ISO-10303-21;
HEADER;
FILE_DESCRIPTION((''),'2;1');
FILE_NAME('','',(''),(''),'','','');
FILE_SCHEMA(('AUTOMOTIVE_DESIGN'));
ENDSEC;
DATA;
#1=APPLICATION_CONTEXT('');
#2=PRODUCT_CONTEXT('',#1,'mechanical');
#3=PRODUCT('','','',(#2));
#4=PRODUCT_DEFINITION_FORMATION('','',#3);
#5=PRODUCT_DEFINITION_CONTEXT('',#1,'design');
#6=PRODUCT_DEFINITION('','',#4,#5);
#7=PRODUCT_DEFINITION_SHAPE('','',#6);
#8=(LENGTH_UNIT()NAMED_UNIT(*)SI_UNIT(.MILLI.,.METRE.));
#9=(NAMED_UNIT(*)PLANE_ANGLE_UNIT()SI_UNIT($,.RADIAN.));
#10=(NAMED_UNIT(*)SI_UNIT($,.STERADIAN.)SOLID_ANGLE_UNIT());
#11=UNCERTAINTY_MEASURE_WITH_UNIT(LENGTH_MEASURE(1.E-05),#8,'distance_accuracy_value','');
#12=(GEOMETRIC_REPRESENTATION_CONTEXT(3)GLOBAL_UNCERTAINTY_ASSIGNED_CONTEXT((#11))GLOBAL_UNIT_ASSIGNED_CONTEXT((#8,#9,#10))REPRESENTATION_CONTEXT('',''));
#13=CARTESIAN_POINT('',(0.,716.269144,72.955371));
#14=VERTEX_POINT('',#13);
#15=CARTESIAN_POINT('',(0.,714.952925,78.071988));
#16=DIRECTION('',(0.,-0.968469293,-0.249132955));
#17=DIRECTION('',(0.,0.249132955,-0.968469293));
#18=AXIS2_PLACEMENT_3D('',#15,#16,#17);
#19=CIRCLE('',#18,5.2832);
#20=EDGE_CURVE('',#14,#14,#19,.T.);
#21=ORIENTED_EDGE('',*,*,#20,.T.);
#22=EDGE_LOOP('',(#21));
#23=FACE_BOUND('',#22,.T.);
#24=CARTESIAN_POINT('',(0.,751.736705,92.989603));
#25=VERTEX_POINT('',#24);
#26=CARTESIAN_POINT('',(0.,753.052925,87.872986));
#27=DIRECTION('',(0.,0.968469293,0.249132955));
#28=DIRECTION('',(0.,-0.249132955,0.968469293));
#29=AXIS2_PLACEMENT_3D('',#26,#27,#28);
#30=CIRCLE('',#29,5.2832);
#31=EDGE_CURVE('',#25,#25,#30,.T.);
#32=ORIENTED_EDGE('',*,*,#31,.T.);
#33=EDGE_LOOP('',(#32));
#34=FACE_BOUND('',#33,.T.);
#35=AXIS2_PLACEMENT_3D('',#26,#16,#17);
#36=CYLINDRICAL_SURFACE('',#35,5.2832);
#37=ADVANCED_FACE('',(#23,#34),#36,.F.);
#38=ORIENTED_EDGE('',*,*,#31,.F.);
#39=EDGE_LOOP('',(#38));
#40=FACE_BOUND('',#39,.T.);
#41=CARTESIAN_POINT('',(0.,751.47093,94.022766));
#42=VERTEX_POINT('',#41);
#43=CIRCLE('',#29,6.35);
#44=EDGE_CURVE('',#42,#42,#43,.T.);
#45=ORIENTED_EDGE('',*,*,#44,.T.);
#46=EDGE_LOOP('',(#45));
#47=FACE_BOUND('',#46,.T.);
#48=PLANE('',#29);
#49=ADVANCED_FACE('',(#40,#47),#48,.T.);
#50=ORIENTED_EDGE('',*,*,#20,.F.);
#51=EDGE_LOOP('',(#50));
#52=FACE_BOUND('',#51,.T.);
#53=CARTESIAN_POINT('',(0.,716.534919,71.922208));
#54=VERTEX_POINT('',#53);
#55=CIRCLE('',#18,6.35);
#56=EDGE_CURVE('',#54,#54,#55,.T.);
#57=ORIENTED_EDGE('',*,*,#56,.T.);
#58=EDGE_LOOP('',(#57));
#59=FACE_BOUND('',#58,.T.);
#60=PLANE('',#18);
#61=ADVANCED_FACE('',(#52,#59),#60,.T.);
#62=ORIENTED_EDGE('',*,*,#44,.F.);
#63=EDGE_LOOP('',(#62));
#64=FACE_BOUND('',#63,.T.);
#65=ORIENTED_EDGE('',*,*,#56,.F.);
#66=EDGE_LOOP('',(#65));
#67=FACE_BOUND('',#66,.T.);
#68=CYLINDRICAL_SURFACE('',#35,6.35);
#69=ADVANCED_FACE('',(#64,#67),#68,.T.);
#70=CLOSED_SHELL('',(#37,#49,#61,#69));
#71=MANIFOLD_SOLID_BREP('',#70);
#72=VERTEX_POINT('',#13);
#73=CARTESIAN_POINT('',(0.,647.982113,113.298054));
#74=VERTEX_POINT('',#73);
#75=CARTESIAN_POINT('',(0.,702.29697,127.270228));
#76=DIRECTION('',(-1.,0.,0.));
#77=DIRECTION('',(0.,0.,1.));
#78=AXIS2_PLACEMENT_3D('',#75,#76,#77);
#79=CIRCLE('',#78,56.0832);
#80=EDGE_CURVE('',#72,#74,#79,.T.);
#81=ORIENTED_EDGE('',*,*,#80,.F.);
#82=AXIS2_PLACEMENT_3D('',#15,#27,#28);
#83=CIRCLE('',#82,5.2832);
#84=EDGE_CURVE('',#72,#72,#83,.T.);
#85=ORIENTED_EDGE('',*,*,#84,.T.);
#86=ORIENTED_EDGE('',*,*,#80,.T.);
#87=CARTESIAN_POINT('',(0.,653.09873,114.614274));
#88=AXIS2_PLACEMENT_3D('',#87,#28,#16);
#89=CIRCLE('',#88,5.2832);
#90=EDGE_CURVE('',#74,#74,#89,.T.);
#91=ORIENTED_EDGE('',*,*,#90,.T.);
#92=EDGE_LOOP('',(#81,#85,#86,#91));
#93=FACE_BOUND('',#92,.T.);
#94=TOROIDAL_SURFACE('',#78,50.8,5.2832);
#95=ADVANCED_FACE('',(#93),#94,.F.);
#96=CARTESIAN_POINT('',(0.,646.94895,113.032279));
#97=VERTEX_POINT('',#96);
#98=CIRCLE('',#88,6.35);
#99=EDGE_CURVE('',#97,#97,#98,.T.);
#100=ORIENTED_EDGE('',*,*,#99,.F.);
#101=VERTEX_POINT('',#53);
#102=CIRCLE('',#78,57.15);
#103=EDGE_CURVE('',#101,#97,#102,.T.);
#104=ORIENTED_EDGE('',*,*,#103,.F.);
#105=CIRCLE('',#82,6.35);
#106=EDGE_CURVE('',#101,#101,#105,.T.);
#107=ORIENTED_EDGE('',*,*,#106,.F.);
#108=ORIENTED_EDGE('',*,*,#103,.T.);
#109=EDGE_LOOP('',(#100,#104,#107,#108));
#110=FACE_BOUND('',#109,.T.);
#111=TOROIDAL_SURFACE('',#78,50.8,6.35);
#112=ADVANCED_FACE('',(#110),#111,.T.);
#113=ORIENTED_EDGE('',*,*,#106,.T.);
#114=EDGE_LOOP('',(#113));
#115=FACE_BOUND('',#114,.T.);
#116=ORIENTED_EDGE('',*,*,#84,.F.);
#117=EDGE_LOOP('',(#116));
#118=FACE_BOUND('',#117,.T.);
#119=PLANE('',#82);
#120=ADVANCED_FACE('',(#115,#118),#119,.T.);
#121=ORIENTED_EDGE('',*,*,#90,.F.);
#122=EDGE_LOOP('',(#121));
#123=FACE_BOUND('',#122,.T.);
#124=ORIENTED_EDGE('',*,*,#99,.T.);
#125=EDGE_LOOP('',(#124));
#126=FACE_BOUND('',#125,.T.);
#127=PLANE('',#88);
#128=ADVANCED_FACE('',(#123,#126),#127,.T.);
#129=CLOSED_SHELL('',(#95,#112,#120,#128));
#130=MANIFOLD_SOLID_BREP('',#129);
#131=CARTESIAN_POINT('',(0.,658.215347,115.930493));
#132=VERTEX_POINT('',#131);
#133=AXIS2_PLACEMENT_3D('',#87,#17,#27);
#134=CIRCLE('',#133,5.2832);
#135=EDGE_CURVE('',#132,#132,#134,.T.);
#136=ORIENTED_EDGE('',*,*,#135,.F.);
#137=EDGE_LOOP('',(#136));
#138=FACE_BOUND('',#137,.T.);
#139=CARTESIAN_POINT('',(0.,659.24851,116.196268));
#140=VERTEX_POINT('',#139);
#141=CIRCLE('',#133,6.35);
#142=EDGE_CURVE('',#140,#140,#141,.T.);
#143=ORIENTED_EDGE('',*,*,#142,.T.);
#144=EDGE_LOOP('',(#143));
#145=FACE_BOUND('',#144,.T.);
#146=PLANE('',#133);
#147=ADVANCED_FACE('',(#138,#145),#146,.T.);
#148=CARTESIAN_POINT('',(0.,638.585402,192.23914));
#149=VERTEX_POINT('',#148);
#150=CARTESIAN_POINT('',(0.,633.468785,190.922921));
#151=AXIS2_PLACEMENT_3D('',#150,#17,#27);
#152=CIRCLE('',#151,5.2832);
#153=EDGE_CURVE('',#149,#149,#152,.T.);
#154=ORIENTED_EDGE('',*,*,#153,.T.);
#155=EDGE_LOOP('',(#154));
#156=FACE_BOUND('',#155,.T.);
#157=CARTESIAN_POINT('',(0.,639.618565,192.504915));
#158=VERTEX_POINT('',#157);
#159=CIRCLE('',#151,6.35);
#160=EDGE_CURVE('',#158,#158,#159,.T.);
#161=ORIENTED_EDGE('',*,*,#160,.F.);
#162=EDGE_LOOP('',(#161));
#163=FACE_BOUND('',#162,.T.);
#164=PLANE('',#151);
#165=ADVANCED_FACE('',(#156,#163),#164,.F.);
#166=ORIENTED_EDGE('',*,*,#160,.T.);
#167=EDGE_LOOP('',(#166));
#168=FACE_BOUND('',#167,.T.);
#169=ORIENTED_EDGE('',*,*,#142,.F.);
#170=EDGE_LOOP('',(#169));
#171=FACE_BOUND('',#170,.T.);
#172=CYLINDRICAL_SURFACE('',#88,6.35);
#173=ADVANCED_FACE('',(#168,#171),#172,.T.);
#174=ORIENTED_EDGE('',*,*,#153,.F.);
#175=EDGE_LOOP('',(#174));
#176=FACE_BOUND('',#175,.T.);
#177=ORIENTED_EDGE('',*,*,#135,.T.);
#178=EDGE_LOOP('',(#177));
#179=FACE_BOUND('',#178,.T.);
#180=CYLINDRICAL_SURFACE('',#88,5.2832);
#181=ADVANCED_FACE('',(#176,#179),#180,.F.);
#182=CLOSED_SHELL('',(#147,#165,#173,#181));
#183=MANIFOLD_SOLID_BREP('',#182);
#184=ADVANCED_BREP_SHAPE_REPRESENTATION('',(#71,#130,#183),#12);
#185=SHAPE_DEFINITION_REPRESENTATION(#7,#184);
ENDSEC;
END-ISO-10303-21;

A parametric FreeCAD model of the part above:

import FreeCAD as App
import Part
import Sketcher
Q = App.Units.Quantity

doc = App.newDocument("Part")
body = doc.addObject("PartDesign::Body", "Body")

# Sketch on an angled plane
sketch1 = body.newObject("Sketcher::SketchObject", "Sketch")
sketch1.Placement = App.Placement(App.Vector(0, 633.468785, 190.922921), App.Rotation(App.Vector(0, 0.968469293, 0.249132955), App.Vector(1.000000001, 0, 0), App.Vector(0, 0.249132955, -0.968469293), "ZXY"))
sketch1.addGeometry([
    Part.Circle(App.Vector(0, 0, 0), App.Vector(0, 0, 1), 6),
    Part.Circle(App.Vector(0, 0, 0), App.Vector(0, 0, 1), 5),
], False)
sketch1.addConstraint([
    Sketcher.Constraint("Coincident", 0, 3, -1, 1),
    Sketcher.Constraint("Coincident", 1, 3, -1, 1),
    Sketcher.Constraint("Diameter", 0, Q("0.5 in")),
    Sketcher.Constraint("Diameter", 1, Q("0.416 in")),
])
pad1 = body.newObject("PartDesign::Pad", "Pad")
pad1.Profile = sketch1
pad1.Length = 78.793048
body2 = doc.addObject("PartDesign::Body", "Body001")

# Sketch on an angled plane
sketch2 = body2.newObject("Sketcher::SketchObject", "Sketch001")
sketch2.Placement = App.Placement(App.Vector(0, 653.09873, 114.614274), App.Rotation(App.Vector(0, 0.968469293, 0.249132955), App.Vector(1.000000001, 0, 0), App.Vector(0, 0.249132955, -0.968469293), "ZXY"))
sketch2.addGeometry([
    Part.Circle(App.Vector(0, 0, 0), App.Vector(0, 0, 1), 6),
    Part.Circle(App.Vector(0, 0, 0), App.Vector(0, 0, 1), 5),
], False)
sketch2.addGeometry(Part.LineSegment(App.Vector(51, 0, 0), App.Vector(51, 10, 0)), True)  # axis
sketch2.addConstraint([
    Sketcher.Constraint("Vertical", 2),
    Sketcher.Constraint("Coincident", 0, 3, -1, 1),
    Sketcher.Constraint("Coincident", 1, 3, -1, 1),
    Sketcher.Constraint("PointOnObject", 2, 1, -1),
    Sketcher.Constraint("Diameter", 0, Q("0.5 in")),
    Sketcher.Constraint("Diameter", 1, Q("0.416 in")),
    Sketcher.Constraint("DistanceX", -1, 1, 2, 1, Q("2 in")),
    Sketcher.Constraint("DistanceY", 2, 1, 2, 2, 10.0),
])
revolution = body2.newObject("PartDesign::Revolution", "Revolution")
revolution.Profile = sketch2
revolution.ReferenceAxis = (sketch2, ["Axis0"])
revolution.Angle = 90
body3 = doc.addObject("PartDesign::Body", "Body002")

# Sketch on an angled plane
sketch3 = body3.newObject("Sketcher::SketchObject", "Sketch002")
sketch3.Placement = App.Placement(App.Vector(0, 714.952925, 78.071988), App.Rotation(App.Vector(0, -0.249132955, 0.968469293), App.Vector(1.000000001, 0, 0), App.Vector(0, 0.968469293, 0.249132955), "ZXY"))
sketch3.addGeometry([
    Part.Circle(App.Vector(0, 0, 0), App.Vector(0, 0, 1), 6),
    Part.Circle(App.Vector(0, 0, 0), App.Vector(0, 0, 1), 5),
], False)
sketch3.addConstraint([
    Sketcher.Constraint("Coincident", 0, 3, -1, 1),
    Sketcher.Constraint("Coincident", 1, 3, -1, 1),
    Sketcher.Constraint("Diameter", 0, Q("0.5 in")),
    Sketcher.Constraint("Diameter", 1, Q("0.416 in")),
])
pad2 = body3.newObject("PartDesign::Pad", "Pad001")
pad2.Profile = sketch3
pad2.Length = 39.340432

doc.recompute()
